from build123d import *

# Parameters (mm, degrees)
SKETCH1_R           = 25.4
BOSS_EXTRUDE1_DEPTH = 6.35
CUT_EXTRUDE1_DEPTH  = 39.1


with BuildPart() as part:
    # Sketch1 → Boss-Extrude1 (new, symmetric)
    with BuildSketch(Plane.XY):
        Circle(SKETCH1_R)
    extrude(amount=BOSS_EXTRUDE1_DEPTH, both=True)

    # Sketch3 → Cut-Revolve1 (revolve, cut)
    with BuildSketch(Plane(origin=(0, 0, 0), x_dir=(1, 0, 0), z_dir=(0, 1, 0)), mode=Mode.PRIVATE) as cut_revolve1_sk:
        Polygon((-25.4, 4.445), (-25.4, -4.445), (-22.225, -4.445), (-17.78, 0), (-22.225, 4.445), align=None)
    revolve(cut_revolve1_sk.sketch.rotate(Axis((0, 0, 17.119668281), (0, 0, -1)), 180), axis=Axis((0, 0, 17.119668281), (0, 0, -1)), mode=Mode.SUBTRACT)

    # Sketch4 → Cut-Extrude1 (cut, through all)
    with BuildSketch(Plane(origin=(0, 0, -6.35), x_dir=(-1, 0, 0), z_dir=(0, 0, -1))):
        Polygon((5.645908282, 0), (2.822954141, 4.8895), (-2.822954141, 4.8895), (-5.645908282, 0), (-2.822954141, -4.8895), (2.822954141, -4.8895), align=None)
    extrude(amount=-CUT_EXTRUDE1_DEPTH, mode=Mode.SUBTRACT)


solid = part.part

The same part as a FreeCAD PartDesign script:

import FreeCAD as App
import Part
import Sketcher

V = App.Vector
Q = App.Units.Quantity


def add_polygon(sketch, points):
    """Adds a closed chain of lines whose ends are joined by coincident constraints."""
    first, n = sketch.GeometryCount, len(points)
    for a, b in zip(points, points[1:] + points[:1]):
        sketch.addGeometry(Part.LineSegment(App.Vector(*a, 0), App.Vector(*b, 0)), False)
    for i in range(n):
        sketch.addConstraint(Sketcher.Constraint("Coincident", first + i, 2, first + (i + 1) % n, 1))

doc = App.newDocument("Part")
body = doc.addObject("PartDesign::Body", "Body")

# Sketch on XY plane
sketch1 = body.newObject("Sketcher::SketchObject", "Sketch")
sketch1.AttachmentSupport = (doc.getObject("XY_Plane"), [""])
sketch1.MapMode = "FlatFace"
sketch1.addGeometry(Part.Circle(V(0, 0, 0), V(0, 0, 1), 25.4), False)
sketch1.addConstraint(Sketcher.Constraint("Coincident", 0, 3, -1, 1))
sketch1.addConstraint(Sketcher.Constraint("Diameter", 0, Q("2 in")))
pad1 = body.newObject("PartDesign::Pad", "Pad")
pad1.Profile = sketch1
pad1.Length = Q("0.5 in")
pad1.Midplane = True

# Sketch on XZ plane
sketch2 = body.newObject("Sketcher::SketchObject", "Sketch001")
sketch2.AttachmentSupport = (doc.getObject("XZ_Plane"), [""])
sketch2.MapMode = "FlatFace"
add_polygon(sketch2, [(-25.4, -4.445), (-25.4, 4.445), (-22.225, 4.445), (-17.78, 0), (-22.225, -4.445)])  # lines 0-4
sketch2.addConstraint(Sketcher.Constraint("Vertical", 0))
sketch2.addConstraint(Sketcher.Constraint("Horizontal", 1))
sketch2.addConstraint(Sketcher.Constraint("Horizontal", 4))
sketch2.addConstraint(Sketcher.Constraint("Symmetric", 1, 2, 3, 2, -1))
sketch2.addConstraint(Sketcher.Constraint("PointOnObject", 2, 2, -1))
sketch2.addConstraint(Sketcher.Constraint("Perpendicular", 2, 3))
sketch2.addConstraint(Sketcher.Constraint("DistanceX", 0, 2, -1, 1, Q("1 in")))
sketch2.addConstraint(Sketcher.Constraint("DistanceY", 0, 1, 0, 2, Q("0.35 in")))
sketch2.addConstraint(Sketcher.Constraint("DistanceX", 2, 2, -1, 1, Q("0.7 in")))
groove = body.newObject("PartDesign::Groove", "Groove")
groove.Profile = sketch2
groove.ReferenceAxis = (sketch2, ["V_Axis"])
groove.Angle = 360

# Sketch on XY plane
sketch3 = body.newObject("Sketcher::SketchObject", "Sketch002")
sketch3.AttachmentSupport = (doc.getObject("XY_Plane"), [""])
sketch3.MapMode = "FlatFace"
sketch3.AttachmentOffset = App.Placement(V(0, 0, -0.25 * 25.4), App.Rotation())
add_polygon(sketch3, [(-5.645908, 0), (-2.822954, 4.8895), (2.822954, 4.8895), (5.645908, 0), (2.822954, -4.8895), (-2.822954, -4.8895)])  # lines 0-5
sketch3.addConstraint(Sketcher.Constraint("Horizontal", 1))
sketch3.addConstraint(Sketcher.Constraint("Horizontal", 4))
sketch3.addConstraint(Sketcher.Constraint("Symmetric", 0, 2, 3, 2, -1, 1))
sketch3.addConstraint(Sketcher.Constraint("Symmetric", 2, 2, 5, 2, -1, 1))
sketch3.addConstraint(Sketcher.Constraint("PointOnObject", 2, 2, -1))
sketch3.addConstraint(Sketcher.Constraint("Parallel", 2, 5))
sketch3.addConstraint(Sketcher.Constraint("Vertical", 1, 2, 3, 2))
sketch3.addConstraint(Sketcher.Constraint("Angle", 0, Q("60 deg")))
sketch3.addConstraint(Sketcher.Constraint("DistanceY", 3, 2, 1, 2, Q("0.385 in")))
sketch3.addConstraint(Sketcher.Constraint("DistanceX", 1, 1, 1, 2, 5.645908))
pocket1 = body.newObject("PartDesign::Pocket", "Pocket")
pocket1.Profile = sketch3
pocket1.Type = "ThroughAll"
pocket1.Reversed = True

doc.recompute()
